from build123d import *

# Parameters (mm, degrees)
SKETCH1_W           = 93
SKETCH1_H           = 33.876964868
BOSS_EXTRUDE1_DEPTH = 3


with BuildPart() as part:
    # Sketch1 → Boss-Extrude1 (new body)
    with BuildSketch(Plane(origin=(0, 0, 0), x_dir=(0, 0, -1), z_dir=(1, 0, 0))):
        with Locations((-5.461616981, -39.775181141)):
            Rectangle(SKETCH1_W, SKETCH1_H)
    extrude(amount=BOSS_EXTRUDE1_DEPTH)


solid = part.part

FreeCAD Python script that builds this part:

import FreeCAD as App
import Part
import Sketcher
from FreeCAD import Vector
Q = App.Units.Quantity


def add_polygon(sketch, points):
    """Adds a closed chain of lines whose ends are joined by coincident constraints."""
    first, n = sketch.GeometryCount, len(points)
    for a, b in zip(points, points[1:] + points[:1]):
        sketch.addGeometry(Part.LineSegment(App.Vector(*a, 0), App.Vector(*b, 0)), False)
    for i in range(n):
        sketch.addConstraint(Sketcher.Constraint("Coincident", first + i, 2, first + (i + 1) % n, 1))

doc = App.newDocument("Part")
params = doc.addObject("Spreadsheet::Sheet", "Params")
for row, (alias, value) in enumerate([
    ("sketch1_height", "93 mm"),
    ("pad1_length", "3 mm"),
], start=1):
    params.set(f"A{row}", alias)
    params.set(f"B{row}", "=" + value)
    params.setAlias(f"B{row}", alias)

body = doc.addObject("PartDesign::Body", "Body")

sketch1 = body.newObject("Sketcher::SketchObject", "Sketch")
sketch1.AttachmentSupport = (doc.getObject("YZ_Plane"), [""])
sketch1.MapMode = "FlatFace"
add_polygon(sketch1, [(-22.836699, 51.961617), (-56.713664, 51.961617), (-56.713664, -41.038383), (-22.836699, -41.038383)])
sketch1.addConstraint([
    Sketcher.Constraint("Horizontal", 0),
    Sketcher.Constraint("Vertical", 1),
    Sketcher.Constraint("Horizontal", 2),
    Sketcher.Constraint("Vertical", 3),
    Sketcher.Constraint("DistanceY", 1, 2, 1, 1, Q("93 mm")),
    Sketcher.Constraint("DistanceX", 2, 2, -1, 1, Q("22.836699 mm")),
    Sketcher.Constraint("DistanceX", 0, 2, 0, 1, Q("33.876965 mm")),
    Sketcher.Constraint("DistanceY", -1, 1, 0, 2, Q("51.961617 mm")),
])
sketch1.setExpression("Constraints[8]", "Params.sketch1_height")
pad1 = body.newObject("PartDesign::Pad", "Pad")
pad1.Profile = sketch1
pad1.setExpression("Length", "Params.pad1_length")

doc.recompute()
